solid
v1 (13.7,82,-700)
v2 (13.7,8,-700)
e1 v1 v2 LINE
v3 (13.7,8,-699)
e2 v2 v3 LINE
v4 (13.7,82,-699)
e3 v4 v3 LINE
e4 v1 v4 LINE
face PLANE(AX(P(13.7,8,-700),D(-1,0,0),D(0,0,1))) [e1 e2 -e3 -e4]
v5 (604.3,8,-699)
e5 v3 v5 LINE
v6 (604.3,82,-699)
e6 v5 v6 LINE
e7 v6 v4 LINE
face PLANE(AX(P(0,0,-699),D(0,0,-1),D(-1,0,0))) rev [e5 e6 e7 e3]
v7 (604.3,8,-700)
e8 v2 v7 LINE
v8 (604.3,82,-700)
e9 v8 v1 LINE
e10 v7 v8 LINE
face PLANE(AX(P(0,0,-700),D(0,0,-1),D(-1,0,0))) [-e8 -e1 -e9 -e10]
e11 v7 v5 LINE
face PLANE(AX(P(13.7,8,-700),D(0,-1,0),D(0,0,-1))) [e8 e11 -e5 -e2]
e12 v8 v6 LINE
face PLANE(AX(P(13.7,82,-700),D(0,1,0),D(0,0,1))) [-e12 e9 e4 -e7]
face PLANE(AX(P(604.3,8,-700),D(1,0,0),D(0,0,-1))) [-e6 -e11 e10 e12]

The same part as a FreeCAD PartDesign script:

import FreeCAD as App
import Part
import Sketcher

V = App.Vector

doc = App.newDocument("Part")
body = doc.addObject("PartDesign::Body", "Body")

# Sketch on XY plane
sketch1 = body.newObject("Sketcher::SketchObject", "Sketch")
sketch1.AttachmentSupport = (doc.getObject("XY_Plane"), [""])
sketch1.MapMode = "FlatFace"
sketch1.AttachmentOffset = App.Placement(V(0, 0, -699), App.Rotation())
sketch1.addGeometry([
    Part.LineSegment(V(14, 82, 0), V(14, 8, 0)),
    Part.LineSegment(V(14, 8, 0), V(604, 8, 0)),
    Part.LineSegment(V(604, 8, 0), V(604, 82, 0)),
    Part.LineSegment(V(604, 82, 0), V(14, 82, 0)),
], False)
sketch1.addConstraint([
    Sketcher.Constraint("Coincident", 0, 2, 1, 1),
    Sketcher.Constraint("Coincident", 1, 2, 2, 1),
    Sketcher.Constraint("Coincident", 2, 2, 3, 1),
    Sketcher.Constraint("Coincident", 3, 2, 0, 1),
    Sketcher.Constraint("Vertical", 0),
    Sketcher.Constraint("Horizontal", 1),
    Sketcher.Constraint("Vertical", 2),
    Sketcher.Constraint("Horizontal", 3),
    Sketcher.Constraint("DistanceY", 0, 2, 0, 1, 74.0),
    Sketcher.Constraint("DistanceX", 1, 1, 1, 2, 590.6),
    Sketcher.Constraint("DistanceY", -1, 1, 0, 2, 8.0),
    Sketcher.Constraint("DistanceX", -1, 1, 0, 2, 13.7),
])
pad1 = body.newObject("PartDesign::Pad", "Pad")
pad1.Profile = sketch1
pad1.Length = 1
pad1.Reversed = True

doc.recompute()
